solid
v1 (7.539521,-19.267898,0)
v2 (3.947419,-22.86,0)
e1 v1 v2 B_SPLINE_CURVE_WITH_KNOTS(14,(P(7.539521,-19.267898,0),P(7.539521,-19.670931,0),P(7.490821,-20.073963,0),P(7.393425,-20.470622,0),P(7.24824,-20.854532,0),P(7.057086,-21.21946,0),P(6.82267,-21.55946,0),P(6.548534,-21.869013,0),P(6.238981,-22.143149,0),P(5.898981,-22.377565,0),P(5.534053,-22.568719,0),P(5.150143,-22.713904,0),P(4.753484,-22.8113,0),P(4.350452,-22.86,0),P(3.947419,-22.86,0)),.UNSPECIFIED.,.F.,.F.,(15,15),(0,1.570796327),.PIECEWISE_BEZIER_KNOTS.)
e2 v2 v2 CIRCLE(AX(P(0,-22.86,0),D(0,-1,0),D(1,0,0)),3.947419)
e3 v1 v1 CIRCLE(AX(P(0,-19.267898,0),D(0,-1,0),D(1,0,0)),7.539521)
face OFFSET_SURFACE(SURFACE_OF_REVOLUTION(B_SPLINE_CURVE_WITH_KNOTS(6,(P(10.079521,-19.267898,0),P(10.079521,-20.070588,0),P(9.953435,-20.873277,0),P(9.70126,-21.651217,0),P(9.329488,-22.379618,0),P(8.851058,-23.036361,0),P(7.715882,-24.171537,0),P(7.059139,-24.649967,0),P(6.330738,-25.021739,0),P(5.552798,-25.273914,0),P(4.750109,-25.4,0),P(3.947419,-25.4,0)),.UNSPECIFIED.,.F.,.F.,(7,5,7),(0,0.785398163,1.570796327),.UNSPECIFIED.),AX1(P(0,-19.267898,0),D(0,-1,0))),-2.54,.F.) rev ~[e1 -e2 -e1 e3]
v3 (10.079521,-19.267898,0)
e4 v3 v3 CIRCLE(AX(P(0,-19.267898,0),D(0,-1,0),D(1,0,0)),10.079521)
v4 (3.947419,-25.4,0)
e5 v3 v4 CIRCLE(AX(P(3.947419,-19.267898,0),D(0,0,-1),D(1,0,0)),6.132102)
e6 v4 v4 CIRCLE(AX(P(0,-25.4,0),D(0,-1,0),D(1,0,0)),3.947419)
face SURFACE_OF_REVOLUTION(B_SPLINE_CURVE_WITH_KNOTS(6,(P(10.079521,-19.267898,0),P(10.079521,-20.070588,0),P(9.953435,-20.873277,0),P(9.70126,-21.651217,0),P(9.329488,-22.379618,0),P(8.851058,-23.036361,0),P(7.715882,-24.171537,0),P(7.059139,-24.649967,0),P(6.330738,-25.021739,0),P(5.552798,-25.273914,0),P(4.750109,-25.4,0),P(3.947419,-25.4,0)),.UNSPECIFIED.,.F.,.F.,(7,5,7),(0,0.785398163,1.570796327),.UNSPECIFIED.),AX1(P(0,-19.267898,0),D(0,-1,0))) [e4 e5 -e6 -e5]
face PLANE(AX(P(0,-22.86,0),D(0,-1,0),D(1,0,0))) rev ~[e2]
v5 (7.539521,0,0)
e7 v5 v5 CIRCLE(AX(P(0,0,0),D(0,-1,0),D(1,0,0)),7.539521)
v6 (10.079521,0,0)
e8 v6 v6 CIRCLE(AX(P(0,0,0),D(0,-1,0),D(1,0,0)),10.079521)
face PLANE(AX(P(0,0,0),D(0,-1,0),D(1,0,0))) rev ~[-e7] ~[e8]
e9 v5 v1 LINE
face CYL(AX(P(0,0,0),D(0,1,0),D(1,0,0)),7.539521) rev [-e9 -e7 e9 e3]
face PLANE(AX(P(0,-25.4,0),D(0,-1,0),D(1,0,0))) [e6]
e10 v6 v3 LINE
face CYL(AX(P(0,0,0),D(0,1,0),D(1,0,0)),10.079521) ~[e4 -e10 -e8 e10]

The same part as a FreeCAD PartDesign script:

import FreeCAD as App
import Part
import Sketcher
from FreeCAD import Vector
Q = App.Units.Quantity


def edges_at(feature, points):
    """Names of the edges that pass closest to the given points."""
    edges = feature.Shape.Edges
    near = lambda p: min(range(len(edges)), key=lambda i: edges[i].distToShape(Part.Vertex(*p))[0])
    return sorted({f"Edge{near(p) + 1}" for p in points})


def faces_at(feature, points):
    """Names of the faces that lie closest to the given points."""
    faces = feature.Shape.Faces
    near = lambda p: min(range(len(faces)), key=lambda i: faces[i].distToShape(Part.Vertex(*p))[0])
    return sorted({f"Face{near(p) + 1}" for p in points})

doc = App.newDocument("Part")
params = doc.addObject("Spreadsheet::Sheet", "Params")
for row, (alias, value) in enumerate([
    ("pad1_length", "1 in"),
    ("fillet_radius", "6.132102 mm"),
    ("thickness_wall", "0.1 in"),
], start=1):
    params.set(f"A{row}", alias)
    params.set(f"B{row}", "=" + value)
    params.setAlias(f"B{row}", alias)

body = doc.addObject("PartDesign::Body", "Body")

# Sketch on XZ plane
sketch1 = body.newObject("Sketcher::SketchObject", "Sketch")
sketch1.AttachmentSupport = (doc.getObject("XZ_Plane"), [""])
sketch1.MapMode = "FlatFace"
sketch1.addGeometry(Part.Circle(Vector(0, 0, 0), Vector(0, 0, 1), 10), False)
sketch1.addConstraint(Sketcher.Constraint("Coincident", 0, 3, -1, 1))
sketch1.addConstraint(Sketcher.Constraint("Diameter", 0, Q("20.159042 mm")))
pad1 = body.newObject("PartDesign::Pad", "Pad")
pad1.Profile = sketch1
pad1.setExpression("Length", "Params.pad1_length")
doc.recompute()

fillet = body.newObject("PartDesign::Fillet", "Fillet")
fillet.Base = (pad1, edges_at(pad1, [(-10.08, -25.4, 0)]))
fillet.setExpression("Radius", "Params.fillet_radius")
doc.recompute()

thickness = body.newObject("PartDesign::Thickness", "Thickness")
thickness.Base = (fillet, faces_at(fillet, [(0, 0, 0)]))
thickness.setExpression("Value", "Params.thickness_wall")
thickness.Reversed = True
thickness.Join = "Arc"

doc.recompute()
